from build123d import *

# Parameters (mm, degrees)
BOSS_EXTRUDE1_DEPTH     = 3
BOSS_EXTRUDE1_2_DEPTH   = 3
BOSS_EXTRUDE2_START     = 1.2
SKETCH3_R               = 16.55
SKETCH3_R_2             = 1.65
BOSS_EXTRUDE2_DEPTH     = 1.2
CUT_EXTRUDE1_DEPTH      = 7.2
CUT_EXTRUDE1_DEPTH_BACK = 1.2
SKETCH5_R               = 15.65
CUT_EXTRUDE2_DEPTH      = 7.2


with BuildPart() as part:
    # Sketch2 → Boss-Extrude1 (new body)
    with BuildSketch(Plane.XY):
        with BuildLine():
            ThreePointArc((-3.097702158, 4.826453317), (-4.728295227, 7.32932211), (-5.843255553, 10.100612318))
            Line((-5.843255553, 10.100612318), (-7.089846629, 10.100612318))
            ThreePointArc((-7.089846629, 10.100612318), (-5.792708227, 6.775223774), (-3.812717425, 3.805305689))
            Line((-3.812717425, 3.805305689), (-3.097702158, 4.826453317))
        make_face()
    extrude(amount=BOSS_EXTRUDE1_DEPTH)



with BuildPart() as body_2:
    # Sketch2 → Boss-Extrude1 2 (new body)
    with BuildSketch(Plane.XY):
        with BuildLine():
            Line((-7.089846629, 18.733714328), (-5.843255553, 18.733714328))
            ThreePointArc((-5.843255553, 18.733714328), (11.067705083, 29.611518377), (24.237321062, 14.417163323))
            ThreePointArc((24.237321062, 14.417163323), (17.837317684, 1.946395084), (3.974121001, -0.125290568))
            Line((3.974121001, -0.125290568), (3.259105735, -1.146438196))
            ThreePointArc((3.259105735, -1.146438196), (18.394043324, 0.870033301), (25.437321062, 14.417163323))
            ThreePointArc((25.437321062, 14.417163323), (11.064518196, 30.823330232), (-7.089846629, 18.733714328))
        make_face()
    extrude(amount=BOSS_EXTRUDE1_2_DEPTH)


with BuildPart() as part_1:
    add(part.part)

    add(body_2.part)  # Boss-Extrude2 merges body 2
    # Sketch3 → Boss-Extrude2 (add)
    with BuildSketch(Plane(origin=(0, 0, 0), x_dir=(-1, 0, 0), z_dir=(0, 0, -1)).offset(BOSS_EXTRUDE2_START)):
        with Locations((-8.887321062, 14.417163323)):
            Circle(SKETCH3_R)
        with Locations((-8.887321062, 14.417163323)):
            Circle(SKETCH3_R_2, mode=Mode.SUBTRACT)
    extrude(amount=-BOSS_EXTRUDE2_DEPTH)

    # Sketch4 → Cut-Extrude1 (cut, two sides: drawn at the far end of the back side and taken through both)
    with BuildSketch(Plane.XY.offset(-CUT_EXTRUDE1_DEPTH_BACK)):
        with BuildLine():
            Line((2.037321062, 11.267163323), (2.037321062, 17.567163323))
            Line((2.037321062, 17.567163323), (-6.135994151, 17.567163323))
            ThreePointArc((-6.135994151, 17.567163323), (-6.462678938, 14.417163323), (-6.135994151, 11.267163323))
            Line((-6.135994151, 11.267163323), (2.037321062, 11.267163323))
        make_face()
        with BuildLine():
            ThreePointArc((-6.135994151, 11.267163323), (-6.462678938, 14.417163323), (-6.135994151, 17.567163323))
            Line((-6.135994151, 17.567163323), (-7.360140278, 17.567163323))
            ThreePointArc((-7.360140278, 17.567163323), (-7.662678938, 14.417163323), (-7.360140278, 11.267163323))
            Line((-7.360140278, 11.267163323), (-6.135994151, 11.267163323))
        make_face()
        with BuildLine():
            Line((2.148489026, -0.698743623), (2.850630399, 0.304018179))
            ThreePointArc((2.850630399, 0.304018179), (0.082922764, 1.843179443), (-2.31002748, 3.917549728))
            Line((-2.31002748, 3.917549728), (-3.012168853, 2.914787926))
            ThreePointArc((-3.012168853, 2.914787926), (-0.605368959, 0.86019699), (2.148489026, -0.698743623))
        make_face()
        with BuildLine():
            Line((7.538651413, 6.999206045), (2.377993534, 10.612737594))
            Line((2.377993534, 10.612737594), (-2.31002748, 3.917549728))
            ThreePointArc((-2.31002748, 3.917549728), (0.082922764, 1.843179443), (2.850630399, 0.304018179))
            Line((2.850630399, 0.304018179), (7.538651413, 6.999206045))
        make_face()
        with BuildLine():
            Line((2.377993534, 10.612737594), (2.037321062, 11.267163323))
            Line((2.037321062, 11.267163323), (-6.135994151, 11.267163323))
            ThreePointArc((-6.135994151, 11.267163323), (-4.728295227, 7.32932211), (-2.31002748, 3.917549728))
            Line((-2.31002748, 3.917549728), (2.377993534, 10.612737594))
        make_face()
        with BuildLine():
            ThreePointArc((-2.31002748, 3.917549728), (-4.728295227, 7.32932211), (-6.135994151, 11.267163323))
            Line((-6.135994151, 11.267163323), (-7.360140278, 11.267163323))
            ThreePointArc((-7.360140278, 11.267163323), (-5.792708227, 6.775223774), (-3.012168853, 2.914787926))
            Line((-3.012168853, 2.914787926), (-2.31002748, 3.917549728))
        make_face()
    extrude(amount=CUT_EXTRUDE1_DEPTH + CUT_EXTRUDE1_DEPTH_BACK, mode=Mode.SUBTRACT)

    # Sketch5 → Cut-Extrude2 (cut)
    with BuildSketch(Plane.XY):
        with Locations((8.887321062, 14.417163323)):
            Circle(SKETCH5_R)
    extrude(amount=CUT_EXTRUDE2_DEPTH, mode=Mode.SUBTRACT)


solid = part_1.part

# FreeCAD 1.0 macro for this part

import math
import FreeCAD as App
import Part
import Sketcher
from FreeCAD import Vector
Q = App.Units.Quantity

doc = App.newDocument("Part")
params = doc.addObject("Spreadsheet::Sheet", "Params")
for row, (alias, value) in enumerate([
    ("sketch1_radius", "15.35 mm"),
    ("sketch1_radius2", "16.55 mm"),
    ("pad1_length", "3 mm"),
    ("sketch2_radius", "15.35 mm"),
    ("sketch2_radius2", "16.55 mm"),
    ("pad2_length", "3 mm"),
    ("sketch3_diameter", "33.1 mm"),
    ("sketch3_diameter2", "3.3 mm"),
    ("pad3_length", "1.2 mm"),
    ("sketch4_radius", "16.55 mm"),
    ("sketch4_height", "6.3 mm"),
    ("sketch4_length", "6.3 mm"),
    ("sketch5_diameter", "31.3 mm"),
    ("pocket2_length", "7.2 mm"),
], start=1):
    params.set(f"A{row}", alias)
    params.set(f"B{row}", "=" + value)
    params.setAlias(f"B{row}", alias)

body = doc.addObject("PartDesign::Body", "Body")

# Sketch on XY plane
sketch1 = body.newObject("Sketcher::SketchObject", "Sketch")
sketch1.AttachmentSupport = (doc.getObject("XY_Plane"), [""])
sketch1.MapMode = "FlatFace"
sketch1.addGeometry([
    Part.ArcOfCircle(Part.Circle(Vector(8.9, 14.4, 0), Vector(0, 0, 1), 15.4), math.radians(-164), math.radians(-141)),
    Part.LineSegment(Vector(-5.8, 10.1, 0), Vector(-7.1, 10.1, 0)),
    Part.ArcOfCircle(Part.Circle(Vector(8.9, 14.4, 0), Vector(0, 0, 1), 16.6), math.radians(-165), math.radians(-140)),
    Part.LineSegment(Vector(-3.8, 3.8, 0), Vector(-3.1, 4.8, 0)),
], False)
sketch1.addConstraint([
    Sketcher.Constraint("Coincident", 0, 1, 1, 1),
    Sketcher.Constraint("Coincident", 1, 2, 2, 1),
    Sketcher.Constraint("Coincident", 2, 2, 3, 1),
    Sketcher.Constraint("Coincident", 3, 2, 0, 2),
    Sketcher.Constraint("Horizontal", 1),
    Sketcher.Constraint("Coincident", 2, 3, 0, 3),
    Sketcher.Constraint("Angle", 3, Q("55 deg")),
    Sketcher.Constraint("Radius", 0, Q("15.35 mm")),
    Sketcher.Constraint("Radius", 2, Q("16.55 mm")),
    Sketcher.Constraint("DistanceX", 1, 2, 1, 1, Q("1.246591 mm")),
    Sketcher.Constraint("Distance", 3, Q("1.246591 mm")),
    Sketcher.Constraint("DistanceX", -1, 1, 0, 3, Q("8.887321 mm")),
    Sketcher.Constraint("DistanceY", -1, 1, 0, 3, Q("14.417163 mm")),
])
sketch1.setExpression("Constraints[7]", "Params.sketch1_radius")
sketch1.setExpression("Constraints[8]", "Params.sketch1_radius2")
pad1 = body.newObject("PartDesign::Pad", "Pad")
pad1.Profile = sketch1
pad1.setExpression("Length", "Params.pad1_length")
body2 = doc.addObject("PartDesign::Body", "Body001")

# Sketch on XY plane
sketch2 = body2.newObject("Sketcher::SketchObject", "Sketch001")
sketch2.AttachmentSupport = (doc.getObject("XY_Plane001"), [""])
sketch2.MapMode = "FlatFace"
sketch2.addGeometry([
    Part.LineSegment(Vector(-7.1, 18.7, 0), Vector(-5.8, 18.7, 0)),  # 0
    Part.ArcOfCircle(Part.Circle(Vector(8.9, 14.4, 0), Vector(0, 0, 1), 15.3), math.radians(0), math.radians(164)),  # 1
    Part.ArcOfCircle(Part.Circle(Vector(8.9, 14.4, 0), Vector(0, 0, 1), 15.3), math.radians(-109), math.radians(0)),  # 2
    Part.LineSegment(Vector(4, -0.1, 0), Vector(3.3, -1.1, 0)),  # 3
    Part.ArcOfCircle(Part.Circle(Vector(8.9, 14.4, 0), Vector(0, 0, 1), 16.6), math.radians(-110), math.radians(0)),  # 4
    Part.ArcOfCircle(Part.Circle(Vector(8.9, 14.4, 0), Vector(0, 0, 1), 16.6), math.radians(0), math.radians(165)),  # 5
], False)
sketch2.addConstraint([
    Sketcher.Constraint("Coincident", 0, 2, 1, 2),
    Sketcher.Constraint("Tangent", 1, 1, 2, 2),
    Sketcher.Constraint("Coincident", 2, 1, 3, 1),
    Sketcher.Constraint("Coincident", 3, 2, 4, 1),
    Sketcher.Constraint("Tangent", 4, 2, 5, 1),
    Sketcher.Constraint("Coincident", 5, 2, 0, 1),
    Sketcher.Constraint("Horizontal", 0),
    Sketcher.Constraint("Coincident", 4, 3, 1, 3),
    Sketcher.Constraint("Equal", 1, 2),
    Sketcher.Constraint("Equal", 4, 5),
    Sketcher.Constraint("Horizontal", 5, 3, 1, 1),
    Sketcher.Constraint("Horizontal", 1, 1, 4, 2),
    Sketcher.Constraint("Angle", 3, Q("-125 deg")),
    Sketcher.Constraint("Radius", 1, Q("15.35 mm")),
    Sketcher.Constraint("Radius", 4, Q("16.55 mm")),
    Sketcher.Constraint("DistanceX", 0, 1, 0, 2, Q("1.246591 mm")),
    Sketcher.Constraint("DistanceX", 2, 1, 1, 3, Q("4.9132 mm")),
    Sketcher.Constraint("DistanceX", -1, 1, 1, 3, Q("8.887321 mm")),
    Sketcher.Constraint("DistanceY", 2, 1, -1, 1, Q("0.125291 mm")),
])
sketch2.setExpression("Constraints[13]", "Params.sketch2_radius")
sketch2.setExpression("Constraints[14]", "Params.sketch2_radius2")
pad2 = body2.newObject("PartDesign::Pad", "Pad001")
pad2.Profile = sketch2
pad2.setExpression("Length", "Params.pad2_length")
body.AllowCompound = True
doc.recompute()

boolean = body.newObject("PartDesign::Boolean", "Boolean")
boolean.Type = "Fuse"
boolean.addObjects([body2])

# Sketch on XY plane
sketch3 = body.newObject("Sketcher::SketchObject", "Sketch002")
sketch3.AttachmentSupport = (doc.getObject("XY_Plane"), [""])
sketch3.MapMode = "FlatFace"
sketch3.AttachmentOffset = App.Placement(Vector(0, 0, -1.2), App.Rotation())
sketch3.addGeometry([
    Part.Circle(Vector(8.9, 14.4, 0), Vector(0, 0, 1), 16.6),
    Part.Circle(Vector(8.9, 14.4, 0), Vector(0, 0, 1), 1.6),
], False)
sketch3.addConstraint([
    Sketcher.Constraint("Coincident", 1, 3, 0, 3),
    Sketcher.Constraint("Diameter", 0, Q("33.1 mm")),
    Sketcher.Constraint("Diameter", 1, Q("3.3 mm")),
    Sketcher.Constraint("DistanceX", -1, 1, 0, 3, Q("8.887321 mm")),
    Sketcher.Constraint("DistanceY", -1, 1, 0, 3, Q("14.417163 mm")),
])
sketch3.setExpression("Constraints[1]", "Params.sketch3_diameter")
sketch3.setExpression("Constraints[2]", "Params.sketch3_diameter2")
pad3 = body.newObject("PartDesign::Pad", "Pad002")
pad3.Profile = sketch3
pad3.setExpression("Length", "Params.pad3_length")

# Sketch on XY plane
sketch4 = body.newObject("Sketcher::SketchObject", "Sketch003")
sketch4.AttachmentSupport = (doc.getObject("XY_Plane"), [""])
sketch4.MapMode = "FlatFace"
sketch4.addGeometry([
    Part.LineSegment(Vector(2, 11.3, 0), Vector(2, 17.6, 0)),  # 0
    Part.LineSegment(Vector(2, 17.6, 0), Vector(-7.4, 17.6, 0)),  # 1
    Part.ArcOfCircle(Part.Circle(Vector(8.9, 14.4, 0), Vector(0, 0, 1), 16.5), math.radians(169), math.radians(191)),  # 2
    Part.ArcOfCircle(Part.Circle(Vector(8.9, 14.4, 0), Vector(0, 0, 1), 16.6), math.radians(-169), math.radians(-136)),  # 3
    Part.ArcOfCircle(Part.Circle(Vector(8.9, 14.4, 0), Vector(0, 0, 1), 16.6), math.radians(-136), math.radians(-114)),  # 4
    Part.LineSegment(Vector(2.1, -0.7, 0), Vector(2.9, 0.3, 0)),  # 5
    Part.LineSegment(Vector(2.9, 0.3, 0), Vector(7.5, 7, 0)),  # 6
    Part.LineSegment(Vector(7.5, 7, 0), Vector(2.4, 10.6, 0)),  # 7
    Part.LineSegment(Vector(2.4, 10.6, 0), Vector(2, 11.3, 0)),  # 8
], False)
sketch4.addConstraint([
    Sketcher.Constraint("Coincident", 0, 2, 1, 1),
    Sketcher.Constraint("Coincident", 1, 2, 2, 1),
    Sketcher.Constraint("Tangent", 2, 2, 3, 1),
    Sketcher.Constraint("Tangent", 3, 2, 4, 1),
    Sketcher.Constraint("Coincident", 4, 2, 5, 1),
    Sketcher.Constraint("Coincident", 5, 2, 6, 1),
    Sketcher.Constraint("Coincident", 6, 2, 7, 1),
    Sketcher.Constraint("Coincident", 7, 2, 8, 1),
    Sketcher.Constraint("Coincident", 8, 2, 0, 1),
    Sketcher.Constraint("Vertical", 0),
    Sketcher.Constraint("Horizontal", 1),
    Sketcher.Constraint("Coincident", 4, 3, 2, 3),
    Sketcher.Constraint("Parallel", 5, 6),
    Sketcher.Constraint("Perpendicular", 6, 7),
    Sketcher.Constraint("Horizontal", 2, 2, 8, 2),
    Sketcher.Constraint("Vertical", 1, 2, 2, 2),
    Sketcher.Constraint("Angle", 5, Q("55 deg")),
    Sketcher.Constraint("Radius", 2, Q("16.55 mm")),
    Sketcher.Constraint("DistanceY", 0, 1, 0, 2, Q("6.3 mm")),
    Sketcher.Constraint("Angle", 8, Q("117.5 deg")),
    Sketcher.Constraint("Distance", 7, Q("6.3 mm")),
    Sketcher.Constraint("DistanceX", 0, 2, 2, 3, Q("6.85 mm")),
    Sketcher.Constraint("DistanceX", 3, 2, 5, 2, Q("5.862799 mm")),
    Sketcher.Constraint("DistanceX", -1, 1, 2, 3, Q("8.887321 mm")),
    Sketcher.Constraint("DistanceX", 3, 2, -1, 1, Q("3.012169 mm")),
    Sketcher.Constraint("DistanceX", -1, 1, 4, 2, Q("2.148489 mm")),
    Sketcher.Constraint("DistanceY", -1, 1, 5, 2, Q("0.304018 mm")),
])
sketch4.setExpression("Constraints[17]", "Params.sketch4_radius")
sketch4.setExpression("Constraints[18]", "Params.sketch4_height")
sketch4.setExpression("Constraints[20]", "Params.sketch4_length")
pocket1 = body.newObject("PartDesign::Pocket", "Pocket")
pocket1.Profile = sketch4
pocket1.Type = "ThroughAll"
pocket1.Midplane = True

# Sketch on XY plane
sketch5 = body.newObject("Sketcher::SketchObject", "Sketch004")
sketch5.AttachmentSupport = (doc.getObject("XY_Plane"), [""])
sketch5.MapMode = "FlatFace"
sketch5.addGeometry(Part.Circle(Vector(9, 14, 0), Vector(0, 0, 1), 16), False)
sketch5.addConstraint([
    Sketcher.Constraint("Diameter", 0, Q("31.3 mm")),
    Sketcher.Constraint("DistanceX", -1, 1, 0, 3, Q("8.887321 mm")),
    Sketcher.Constraint("DistanceY", -1, 1, 0, 3, Q("14.417163 mm")),
])
sketch5.setExpression("Constraints[0]", "Params.sketch5_diameter")
pocket2 = body.newObject("PartDesign::Pocket", "Pocket001")
pocket2.Profile = sketch5
pocket2.setExpression("Length", "Params.pocket2_length")
pocket2.Reversed = True

doc.recompute()
